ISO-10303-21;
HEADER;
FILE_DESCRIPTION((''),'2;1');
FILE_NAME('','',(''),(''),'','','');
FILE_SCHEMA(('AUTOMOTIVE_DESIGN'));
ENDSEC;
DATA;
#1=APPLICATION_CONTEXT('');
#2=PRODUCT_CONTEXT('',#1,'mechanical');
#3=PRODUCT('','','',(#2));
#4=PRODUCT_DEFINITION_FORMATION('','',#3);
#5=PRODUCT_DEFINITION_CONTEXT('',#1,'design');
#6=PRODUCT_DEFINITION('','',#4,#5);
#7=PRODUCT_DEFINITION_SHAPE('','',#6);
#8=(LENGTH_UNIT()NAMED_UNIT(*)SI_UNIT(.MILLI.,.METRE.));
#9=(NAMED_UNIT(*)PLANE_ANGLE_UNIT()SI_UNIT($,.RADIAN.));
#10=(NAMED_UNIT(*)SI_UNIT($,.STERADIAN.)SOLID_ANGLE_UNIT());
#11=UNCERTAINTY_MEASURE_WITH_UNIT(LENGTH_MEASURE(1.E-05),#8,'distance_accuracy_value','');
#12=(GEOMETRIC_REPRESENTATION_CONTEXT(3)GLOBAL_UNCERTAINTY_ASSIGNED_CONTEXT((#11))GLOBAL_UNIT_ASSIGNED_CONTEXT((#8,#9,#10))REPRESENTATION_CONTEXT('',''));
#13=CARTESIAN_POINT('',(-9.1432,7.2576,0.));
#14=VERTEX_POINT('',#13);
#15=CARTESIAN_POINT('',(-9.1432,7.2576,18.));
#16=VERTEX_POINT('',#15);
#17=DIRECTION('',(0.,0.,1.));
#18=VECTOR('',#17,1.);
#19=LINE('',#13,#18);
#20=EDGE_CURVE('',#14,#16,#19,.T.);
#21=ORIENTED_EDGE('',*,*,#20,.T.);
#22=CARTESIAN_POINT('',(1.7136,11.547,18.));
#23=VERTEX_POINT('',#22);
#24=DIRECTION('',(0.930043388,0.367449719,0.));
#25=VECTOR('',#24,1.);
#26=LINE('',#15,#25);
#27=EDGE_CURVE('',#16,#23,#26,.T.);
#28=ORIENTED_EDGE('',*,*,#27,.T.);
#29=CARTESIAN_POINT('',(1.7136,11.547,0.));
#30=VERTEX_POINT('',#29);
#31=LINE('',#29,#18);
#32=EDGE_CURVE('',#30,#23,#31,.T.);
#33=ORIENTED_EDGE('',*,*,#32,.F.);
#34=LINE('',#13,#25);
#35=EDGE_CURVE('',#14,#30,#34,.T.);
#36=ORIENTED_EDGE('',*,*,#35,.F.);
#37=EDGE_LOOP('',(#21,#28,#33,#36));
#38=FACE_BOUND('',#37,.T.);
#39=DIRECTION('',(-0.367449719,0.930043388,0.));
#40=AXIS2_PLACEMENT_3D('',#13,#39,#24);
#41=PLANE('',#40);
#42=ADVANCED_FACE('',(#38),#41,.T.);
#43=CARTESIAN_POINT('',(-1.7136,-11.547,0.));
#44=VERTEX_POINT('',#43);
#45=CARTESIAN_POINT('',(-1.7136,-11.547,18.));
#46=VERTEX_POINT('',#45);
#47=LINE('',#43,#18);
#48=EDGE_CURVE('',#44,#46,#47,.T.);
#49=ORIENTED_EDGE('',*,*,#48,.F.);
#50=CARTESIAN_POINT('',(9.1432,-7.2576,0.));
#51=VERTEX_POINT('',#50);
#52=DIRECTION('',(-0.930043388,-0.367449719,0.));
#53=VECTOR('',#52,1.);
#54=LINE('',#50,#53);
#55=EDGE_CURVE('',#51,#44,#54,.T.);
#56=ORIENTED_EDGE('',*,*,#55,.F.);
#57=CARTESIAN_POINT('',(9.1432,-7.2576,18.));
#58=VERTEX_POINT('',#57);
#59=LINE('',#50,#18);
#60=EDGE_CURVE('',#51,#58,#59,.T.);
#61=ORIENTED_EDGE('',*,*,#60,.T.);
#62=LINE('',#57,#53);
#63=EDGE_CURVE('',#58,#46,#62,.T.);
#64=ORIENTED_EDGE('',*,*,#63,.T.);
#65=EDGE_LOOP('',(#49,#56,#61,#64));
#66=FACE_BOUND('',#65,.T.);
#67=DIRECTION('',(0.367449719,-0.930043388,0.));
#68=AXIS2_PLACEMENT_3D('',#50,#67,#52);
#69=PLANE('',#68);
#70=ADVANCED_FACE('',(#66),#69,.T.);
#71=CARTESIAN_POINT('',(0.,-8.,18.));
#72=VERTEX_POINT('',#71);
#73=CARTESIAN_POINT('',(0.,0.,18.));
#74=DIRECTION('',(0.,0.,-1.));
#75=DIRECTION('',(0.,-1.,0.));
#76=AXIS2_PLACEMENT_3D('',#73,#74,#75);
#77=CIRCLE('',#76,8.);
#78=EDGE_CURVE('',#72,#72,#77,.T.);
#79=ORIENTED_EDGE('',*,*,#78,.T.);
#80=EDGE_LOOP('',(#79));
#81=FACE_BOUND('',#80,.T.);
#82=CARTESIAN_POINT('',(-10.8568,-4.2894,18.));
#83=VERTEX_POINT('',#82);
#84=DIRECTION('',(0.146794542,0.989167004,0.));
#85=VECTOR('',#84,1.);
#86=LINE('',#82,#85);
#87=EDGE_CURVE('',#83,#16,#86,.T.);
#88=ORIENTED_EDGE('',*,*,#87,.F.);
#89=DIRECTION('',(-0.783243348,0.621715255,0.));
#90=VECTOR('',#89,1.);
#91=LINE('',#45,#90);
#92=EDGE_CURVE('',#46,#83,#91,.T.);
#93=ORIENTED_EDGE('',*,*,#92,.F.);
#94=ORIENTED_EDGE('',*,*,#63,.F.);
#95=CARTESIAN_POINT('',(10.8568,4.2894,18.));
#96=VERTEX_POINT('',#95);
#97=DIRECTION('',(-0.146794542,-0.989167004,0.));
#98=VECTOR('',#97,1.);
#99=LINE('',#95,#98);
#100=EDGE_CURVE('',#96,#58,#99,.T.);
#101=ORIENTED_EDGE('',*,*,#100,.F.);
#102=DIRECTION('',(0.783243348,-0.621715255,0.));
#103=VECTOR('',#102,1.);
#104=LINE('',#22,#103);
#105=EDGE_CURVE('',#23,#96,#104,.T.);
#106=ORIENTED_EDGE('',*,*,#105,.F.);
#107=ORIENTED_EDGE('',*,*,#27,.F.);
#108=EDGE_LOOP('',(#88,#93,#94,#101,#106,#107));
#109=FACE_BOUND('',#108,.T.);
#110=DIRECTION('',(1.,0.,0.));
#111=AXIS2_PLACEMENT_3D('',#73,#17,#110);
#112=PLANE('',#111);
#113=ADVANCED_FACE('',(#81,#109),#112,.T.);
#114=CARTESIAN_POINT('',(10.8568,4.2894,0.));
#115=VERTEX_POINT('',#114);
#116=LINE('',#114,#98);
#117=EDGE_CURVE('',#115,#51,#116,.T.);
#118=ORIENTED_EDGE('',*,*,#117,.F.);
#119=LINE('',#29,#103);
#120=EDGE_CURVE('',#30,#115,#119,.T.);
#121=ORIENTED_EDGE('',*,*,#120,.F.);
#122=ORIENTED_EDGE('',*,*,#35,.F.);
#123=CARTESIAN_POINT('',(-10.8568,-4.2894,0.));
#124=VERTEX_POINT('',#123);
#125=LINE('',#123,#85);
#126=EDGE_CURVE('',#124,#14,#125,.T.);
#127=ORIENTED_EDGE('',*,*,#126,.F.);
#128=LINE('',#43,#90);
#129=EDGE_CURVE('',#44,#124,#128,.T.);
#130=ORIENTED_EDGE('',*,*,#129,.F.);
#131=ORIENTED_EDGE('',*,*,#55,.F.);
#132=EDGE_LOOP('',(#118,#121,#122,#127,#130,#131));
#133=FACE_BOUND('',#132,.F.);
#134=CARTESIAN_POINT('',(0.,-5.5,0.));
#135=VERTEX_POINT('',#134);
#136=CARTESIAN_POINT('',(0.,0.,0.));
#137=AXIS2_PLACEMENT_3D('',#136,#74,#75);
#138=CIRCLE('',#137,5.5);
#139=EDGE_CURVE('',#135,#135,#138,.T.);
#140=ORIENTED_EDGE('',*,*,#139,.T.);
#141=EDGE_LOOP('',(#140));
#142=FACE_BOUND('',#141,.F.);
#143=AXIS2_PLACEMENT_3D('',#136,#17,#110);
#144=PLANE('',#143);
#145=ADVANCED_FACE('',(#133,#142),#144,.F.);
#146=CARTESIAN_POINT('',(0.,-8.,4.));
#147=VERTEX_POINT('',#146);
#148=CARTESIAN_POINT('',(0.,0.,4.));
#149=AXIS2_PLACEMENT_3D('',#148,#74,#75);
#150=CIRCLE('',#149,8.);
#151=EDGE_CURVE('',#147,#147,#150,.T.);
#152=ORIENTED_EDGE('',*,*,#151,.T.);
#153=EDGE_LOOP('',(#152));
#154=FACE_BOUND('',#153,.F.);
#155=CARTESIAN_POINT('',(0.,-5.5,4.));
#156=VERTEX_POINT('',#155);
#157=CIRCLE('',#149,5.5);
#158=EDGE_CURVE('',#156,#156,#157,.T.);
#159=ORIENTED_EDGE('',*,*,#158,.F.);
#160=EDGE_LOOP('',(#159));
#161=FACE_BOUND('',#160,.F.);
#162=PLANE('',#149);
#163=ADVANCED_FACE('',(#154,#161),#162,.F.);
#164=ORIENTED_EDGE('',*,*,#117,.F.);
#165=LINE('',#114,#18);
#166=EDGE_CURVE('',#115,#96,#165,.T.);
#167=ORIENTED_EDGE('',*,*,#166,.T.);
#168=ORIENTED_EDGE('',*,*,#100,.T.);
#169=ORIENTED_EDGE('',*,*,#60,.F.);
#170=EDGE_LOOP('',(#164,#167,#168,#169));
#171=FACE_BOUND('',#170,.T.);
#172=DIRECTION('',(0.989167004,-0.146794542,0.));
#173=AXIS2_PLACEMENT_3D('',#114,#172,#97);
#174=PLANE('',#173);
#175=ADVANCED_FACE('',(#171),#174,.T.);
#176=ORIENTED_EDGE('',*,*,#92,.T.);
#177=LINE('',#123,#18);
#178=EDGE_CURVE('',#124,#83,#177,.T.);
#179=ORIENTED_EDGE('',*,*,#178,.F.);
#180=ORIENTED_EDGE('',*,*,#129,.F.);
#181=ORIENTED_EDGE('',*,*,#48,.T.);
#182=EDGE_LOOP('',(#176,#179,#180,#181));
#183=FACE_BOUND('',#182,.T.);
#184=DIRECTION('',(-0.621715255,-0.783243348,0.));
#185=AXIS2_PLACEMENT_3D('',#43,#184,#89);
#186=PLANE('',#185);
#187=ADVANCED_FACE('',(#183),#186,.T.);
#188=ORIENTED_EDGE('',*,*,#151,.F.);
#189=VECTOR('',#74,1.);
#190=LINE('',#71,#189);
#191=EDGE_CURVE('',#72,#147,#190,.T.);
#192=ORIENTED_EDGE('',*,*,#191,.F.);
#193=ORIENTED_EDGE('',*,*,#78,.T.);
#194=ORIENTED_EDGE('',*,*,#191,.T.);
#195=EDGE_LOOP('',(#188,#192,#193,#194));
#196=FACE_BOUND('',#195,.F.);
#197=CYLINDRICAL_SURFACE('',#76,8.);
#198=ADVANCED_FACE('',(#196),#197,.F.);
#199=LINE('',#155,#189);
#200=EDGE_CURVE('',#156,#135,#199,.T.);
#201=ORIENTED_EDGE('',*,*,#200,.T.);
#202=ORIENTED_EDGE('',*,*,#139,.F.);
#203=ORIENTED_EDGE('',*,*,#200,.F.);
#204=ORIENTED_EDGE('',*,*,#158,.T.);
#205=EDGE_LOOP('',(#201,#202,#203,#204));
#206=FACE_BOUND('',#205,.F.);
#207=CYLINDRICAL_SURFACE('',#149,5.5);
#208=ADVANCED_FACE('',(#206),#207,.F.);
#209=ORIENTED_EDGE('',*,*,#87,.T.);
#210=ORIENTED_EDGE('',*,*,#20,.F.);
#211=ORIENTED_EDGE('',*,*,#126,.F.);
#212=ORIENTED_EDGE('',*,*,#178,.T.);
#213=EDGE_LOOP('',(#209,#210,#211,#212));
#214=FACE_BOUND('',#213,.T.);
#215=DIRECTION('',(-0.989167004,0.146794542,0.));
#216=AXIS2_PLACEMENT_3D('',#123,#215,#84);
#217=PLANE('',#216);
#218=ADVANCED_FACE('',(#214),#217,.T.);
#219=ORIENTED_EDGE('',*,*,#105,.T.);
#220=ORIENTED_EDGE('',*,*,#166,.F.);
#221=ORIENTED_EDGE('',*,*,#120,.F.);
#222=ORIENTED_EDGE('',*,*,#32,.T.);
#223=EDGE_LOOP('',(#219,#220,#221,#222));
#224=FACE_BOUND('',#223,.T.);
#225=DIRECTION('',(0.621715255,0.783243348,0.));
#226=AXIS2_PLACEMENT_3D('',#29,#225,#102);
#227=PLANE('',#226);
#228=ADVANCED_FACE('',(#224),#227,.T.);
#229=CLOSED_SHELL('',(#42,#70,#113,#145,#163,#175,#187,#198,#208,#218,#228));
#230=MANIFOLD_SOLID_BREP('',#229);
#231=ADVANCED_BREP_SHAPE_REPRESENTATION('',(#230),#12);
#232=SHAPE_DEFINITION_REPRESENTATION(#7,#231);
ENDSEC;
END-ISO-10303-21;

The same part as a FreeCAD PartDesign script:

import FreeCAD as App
import Part
import Sketcher
from FreeCAD import Vector


def add_polygon(sketch, points):
    """Adds a closed chain of lines whose ends are joined by coincident constraints."""
    first, n = sketch.GeometryCount, len(points)
    for a, b in zip(points, points[1:] + points[:1]):
        sketch.addGeometry(Part.LineSegment(App.Vector(*a, 0), App.Vector(*b, 0)), False)
    for i in range(n):
        sketch.addConstraint(Sketcher.Constraint("Coincident", first + i, 2, first + (i + 1) % n, 1))

doc = App.newDocument("Part")
params = doc.addObject("Spreadsheet::Sheet", "Params")
for row, (alias, value) in enumerate([
    ("pad1_length", "18 mm"),
    ("sketch2_diameter", "11 mm"),
    ("hole_diameter", "11 mm"),
    ("hole_depth", "18 mm"),
    ("hole_cbore_diameter", "16 mm"),
    ("hole_cbore_depth", "14 mm"),
], start=1):
    params.set(f"A{row}", alias)
    params.set(f"B{row}", "=" + value)
    params.setAlias(f"B{row}", alias)

body = doc.addObject("PartDesign::Body", "Body")

sketch1 = body.newObject("Sketcher::SketchObject", "Sketch")
sketch1.AttachmentSupport = (doc.getObject("XY_Plane"), [""])
sketch1.MapMode = "FlatFace"
add_polygon(sketch1, [(11, 4), (2, 12), (-9, 7), (-11, -4), (-2, -12), (9, -7)])
sketch1.addConstraint(Sketcher.Constraint("Symmetric", 0, 2, 3, 2, -1, 1))
sketch1.addConstraint(Sketcher.Constraint("Symmetric", 1, 2, 4, 2, -1, 1))
sketch1.addConstraint(Sketcher.Constraint("Symmetric", 2, 2, 5, 2, -1, 1))
sketch1.addConstraint(Sketcher.Constraint("Equal", 0, 1))
sketch1.addConstraint(Sketcher.Constraint("Equal", 1, 2))
sketch1.addConstraint(Sketcher.Constraint("DistanceX", 2, 2, 4, 2, 20.0))
sketch1.addConstraint(Sketcher.Constraint("DistanceY", -1, 1, 0, 2, 11.547))
sketch1.addConstraint(Sketcher.Constraint("DistanceY", 2, 2, 1, 2, 11.547))
sketch1.addConstraint(Sketcher.Constraint("Distance", 0, 11.6735))
pad1 = body.newObject("PartDesign::Pad", "Pad")
pad1.Profile = sketch1
pad1.setExpression("Length", "Params.pad1_length")

sketch2 = body.newObject("Sketcher::SketchObject", "Sketch001")
sketch2.AttachmentSupport = (doc.getObject("XY_Plane"), [""])
sketch2.MapMode = "FlatFace"
sketch2.AttachmentOffset = App.Placement(Vector(0, 0, 18), App.Rotation())
sketch2.addGeometry(Part.Circle(Vector(0, 0, 0), Vector(0, 0, 1), 6), False)
sketch2.addConstraint(Sketcher.Constraint("Coincident", 0, 3, -1, 1))
sketch2.addConstraint(Sketcher.Constraint("Diameter", 0, 11.0))
sketch2.setExpression("Constraints[1]", "Params.sketch2_diameter")
doc.recompute()
hole = body.newObject("PartDesign::Hole", "Hole")
hole.Profile = sketch2
hole.ThreadType = "None"
hole.setExpression("Diameter", "Params.hole_diameter")
hole.DepthType = "Dimension"
hole.setExpression("Depth", "Params.hole_depth")
hole.DrillPoint = "Flat"
hole.HoleCutType = "Counterbore"
hole.setExpression("HoleCutDiameter", "Params.hole_cbore_diameter")
hole.setExpression("HoleCutDepth", "Params.hole_cbore_depth")

doc.recompute()
